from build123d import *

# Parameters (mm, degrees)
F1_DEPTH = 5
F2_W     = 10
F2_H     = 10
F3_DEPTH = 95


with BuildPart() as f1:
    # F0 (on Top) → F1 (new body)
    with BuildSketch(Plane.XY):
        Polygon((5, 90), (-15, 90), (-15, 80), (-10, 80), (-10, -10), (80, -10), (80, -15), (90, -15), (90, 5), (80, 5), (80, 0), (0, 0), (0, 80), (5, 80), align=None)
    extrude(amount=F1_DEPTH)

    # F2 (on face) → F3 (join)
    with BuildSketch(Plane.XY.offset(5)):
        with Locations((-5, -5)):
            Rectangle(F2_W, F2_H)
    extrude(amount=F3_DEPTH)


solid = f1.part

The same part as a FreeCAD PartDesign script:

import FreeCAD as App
import Part
import Sketcher
Q = App.Units.Quantity


def add_polygon(sketch, points):
    """Adds a closed chain of lines whose ends are joined by coincident constraints."""
    first, n = sketch.GeometryCount, len(points)
    for a, b in zip(points, points[1:] + points[:1]):
        sketch.addGeometry(Part.LineSegment(App.Vector(*a, 0), App.Vector(*b, 0)), False)
    for i in range(n):
        sketch.addConstraint(Sketcher.Constraint("Coincident", first + i, 2, first + (i + 1) % n, 1))

doc = App.newDocument("Part")
body = doc.addObject("PartDesign::Body", "Body")

# Sketch on XY plane
sketch1 = body.newObject("Sketcher::SketchObject", "Sketch")
sketch1.AttachmentSupport = (doc.getObject("XY_Plane"), [""])
sketch1.MapMode = "FlatFace"
add_polygon(sketch1, [(5, 90), (-15, 90), (-15, 80), (-10, 80), (-10, -10), (80, -10), (80, -15), (90, -15), (90, 5), (80, 5), (80, 0), (0, 0), (0, 80), (5, 80)])  # lines 0-13
sketch1.addConstraint([
    Sketcher.Constraint("Horizontal", 0),
    Sketcher.Constraint("Vertical", 1),
    Sketcher.Constraint("Horizontal", 2),
    Sketcher.Constraint("Vertical", 3),
    Sketcher.Constraint("Horizontal", 4),
    Sketcher.Constraint("Vertical", 5),
    Sketcher.Constraint("Horizontal", 6),
    Sketcher.Constraint("Vertical", 7),
    Sketcher.Constraint("Horizontal", 8),
    Sketcher.Constraint("Vertical", 9),
    Sketcher.Constraint("Horizontal", 10),
    Sketcher.Constraint("Vertical", 11),
    Sketcher.Constraint("Horizontal", 12),
    Sketcher.Constraint("Vertical", 13),
    Sketcher.Constraint("Coincident", 10, 2, -1, 1),
    Sketcher.Constraint("Horizontal", 2, 2, 11, 2),
    Sketcher.Constraint("Vertical", 5, 2, 8, 2),
    Sketcher.Constraint("Equal", 2, 12),
    Sketcher.Constraint("Equal", 8, 1),
    Sketcher.Constraint("Equal", 4, 3),
    Sketcher.Constraint("Equal", 12, 5),
    Sketcher.Constraint("Equal", 0, 7),
    Sketcher.Constraint("Equal", 5, 9),
    Sketcher.Constraint("DistanceX", 0, 2, 0, 1, Q("20 mm")),
    Sketcher.Constraint("DistanceX", 2, 1, 2, 2, Q("5 mm")),
    Sketcher.Constraint("DistanceX", 4, 1, 4, 2, Q("90 mm")),
    Sketcher.Constraint("DistanceX", 6, 1, 6, 2, Q("10 mm")),
])
pad1 = body.newObject("PartDesign::Pad", "Pad")
pad1.Profile = sketch1
pad1.Length = 5

# Sketch on XY plane
sketch2 = body.newObject("Sketcher::SketchObject", "Sketch001")
sketch2.AttachmentSupport = (doc.getObject("XY_Plane"), [""])
sketch2.MapMode = "FlatFace"
sketch2.AttachmentOffset = App.Placement(App.Vector(0, 0, 5), App.Rotation())
add_polygon(sketch2, [(-10, 0), (-10, -10), (0, -10), (0, 0)])  # lines 0-3
sketch2.addConstraint([
    Sketcher.Constraint("Vertical", 0),
    Sketcher.Constraint("Horizontal", 1),
    Sketcher.Constraint("Vertical", 2),
    Sketcher.Constraint("Horizontal", 3),
    Sketcher.Constraint("Coincident", 2, 2, -1, 1),
    Sketcher.Constraint("Equal", 3, 0),
    Sketcher.Constraint("DistanceX", 1, 1, 1, 2, Q("10 mm")),
])
pad2 = body.newObject("PartDesign::Pad", "Pad001")
pad2.Profile = sketch2
pad2.Length = 95

doc.recompute()
